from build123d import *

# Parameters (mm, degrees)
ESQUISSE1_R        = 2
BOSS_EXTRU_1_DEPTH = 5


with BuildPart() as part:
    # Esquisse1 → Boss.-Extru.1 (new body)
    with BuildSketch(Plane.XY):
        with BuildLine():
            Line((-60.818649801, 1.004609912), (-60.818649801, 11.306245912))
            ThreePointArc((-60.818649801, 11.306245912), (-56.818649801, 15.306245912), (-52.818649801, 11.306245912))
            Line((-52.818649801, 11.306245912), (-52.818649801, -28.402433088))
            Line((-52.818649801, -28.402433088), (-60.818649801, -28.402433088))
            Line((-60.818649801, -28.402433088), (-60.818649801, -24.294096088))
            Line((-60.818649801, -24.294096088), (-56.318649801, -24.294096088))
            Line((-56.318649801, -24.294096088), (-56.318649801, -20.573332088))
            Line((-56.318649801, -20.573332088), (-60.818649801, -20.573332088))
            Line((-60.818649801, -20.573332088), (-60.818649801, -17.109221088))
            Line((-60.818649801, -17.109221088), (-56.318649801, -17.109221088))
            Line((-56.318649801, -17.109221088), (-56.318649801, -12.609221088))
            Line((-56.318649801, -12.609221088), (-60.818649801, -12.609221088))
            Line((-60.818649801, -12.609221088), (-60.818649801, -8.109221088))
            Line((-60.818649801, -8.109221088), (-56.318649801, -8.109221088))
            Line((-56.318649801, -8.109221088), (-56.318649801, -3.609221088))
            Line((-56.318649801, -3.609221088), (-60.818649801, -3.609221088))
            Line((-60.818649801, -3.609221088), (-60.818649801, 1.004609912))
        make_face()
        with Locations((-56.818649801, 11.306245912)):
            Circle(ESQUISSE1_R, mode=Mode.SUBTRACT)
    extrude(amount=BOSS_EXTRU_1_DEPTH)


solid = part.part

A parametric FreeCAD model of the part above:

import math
import FreeCAD as App
import Part
import Sketcher
from FreeCAD import Vector

doc = App.newDocument("Part")
body = doc.addObject("PartDesign::Body", "Body")

# Sketch on XY plane
sketch1 = body.newObject("Sketcher::SketchObject", "Sketch")
sketch1.AttachmentSupport = (doc.getObject("XY_Plane"), [""])
sketch1.MapMode = "FlatFace"
sketch1.addGeometry(Part.ArcOfCircle(Part.Circle(Vector(-56.81865, 11.306246, 0), Vector(0, 0, 1), 4), math.radians(0), math.radians(180)), False)
sketch1.addGeometry(Part.LineSegment(Vector(-60.81865, 11.306246, 0), Vector(-60.81865, -3.609221, 0)), False)
sketch1.addGeometry(Part.LineSegment(Vector(-60.81865, -3.609221, 0), Vector(-56.31865, -3.609221, 0)), False)
sketch1.addGeometry(Part.LineSegment(Vector(-56.31865, -3.609221, 0), Vector(-56.31865, -8.109221, 0)), False)
sketch1.addGeometry(Part.LineSegment(Vector(-56.31865, -8.109221, 0), Vector(-60.81865, -8.109221, 0)), False)
sketch1.addGeometry(Part.LineSegment(Vector(-60.81865, -8.109221, 0), Vector(-60.81865, -12.609221, 0)), False)
sketch1.addGeometry(Part.LineSegment(Vector(-60.81865, -12.609221, 0), Vector(-56.31865, -12.609221, 0)), False)
sketch1.addGeometry(Part.LineSegment(Vector(-56.31865, -12.609221, 0), Vector(-56.31865, -17.109221, 0)), False)
sketch1.addGeometry(Part.LineSegment(Vector(-56.31865, -17.109221, 0), Vector(-60.81865, -17.109221, 0)), False)
sketch1.addGeometry(Part.LineSegment(Vector(-60.81865, -17.109221, 0), Vector(-60.81865, -20.573332, 0)), False)
sketch1.addGeometry(Part.LineSegment(Vector(-60.81865, -20.573332, 0), Vector(-56.31865, -20.573332, 0)), False)
sketch1.addGeometry(Part.LineSegment(Vector(-56.31865, -20.573332, 0), Vector(-56.31865, -24.294096, 0)), False)
sketch1.addGeometry(Part.LineSegment(Vector(-56.31865, -24.294096, 0), Vector(-60.81865, -24.294096, 0)), False)
sketch1.addGeometry(Part.LineSegment(Vector(-60.81865, -24.294096, 0), Vector(-60.81865, -28.402433, 0)), False)
sketch1.addGeometry(Part.LineSegment(Vector(-60.81865, -28.402433, 0), Vector(-52.81865, -28.402433, 0)), False)
sketch1.addGeometry(Part.LineSegment(Vector(-52.81865, -28.402433, 0), Vector(-52.81865, 11.306246, 0)), False)
sketch1.addGeometry(Part.Circle(Vector(-56.81865, 11.306246, 0), Vector(0, 0, 1), 2), False)
sketch1.addConstraint(Sketcher.Constraint("Tangent", 0, 2, 1, 1))
sketch1.addConstraint(Sketcher.Constraint("Coincident", 1, 2, 2, 1))
sketch1.addConstraint(Sketcher.Constraint("Coincident", 2, 2, 3, 1))
sketch1.addConstraint(Sketcher.Constraint("Coincident", 3, 2, 4, 1))
sketch1.addConstraint(Sketcher.Constraint("Coincident", 4, 2, 5, 1))
sketch1.addConstraint(Sketcher.Constraint("Coincident", 5, 2, 6, 1))
sketch1.addConstraint(Sketcher.Constraint("Coincident", 6, 2, 7, 1))
sketch1.addConstraint(Sketcher.Constraint("Coincident", 7, 2, 8, 1))
sketch1.addConstraint(Sketcher.Constraint("Coincident", 8, 2, 9, 1))
sketch1.addConstraint(Sketcher.Constraint("Coincident", 9, 2, 10, 1))
sketch1.addConstraint(Sketcher.Constraint("Coincident", 10, 2, 11, 1))
sketch1.addConstraint(Sketcher.Constraint("Coincident", 11, 2, 12, 1))
sketch1.addConstraint(Sketcher.Constraint("Coincident", 12, 2, 13, 1))
sketch1.addConstraint(Sketcher.Constraint("Coincident", 13, 2, 14, 1))
sketch1.addConstraint(Sketcher.Constraint("Coincident", 14, 2, 15, 1))
sketch1.addConstraint(Sketcher.Constraint("Tangent", 15, 2, 0, 1))
sketch1.addConstraint(Sketcher.Constraint("Vertical", 1))
sketch1.addConstraint(Sketcher.Constraint("Horizontal", 2))
sketch1.addConstraint(Sketcher.Constraint("Vertical", 3))
sketch1.addConstraint(Sketcher.Constraint("Horizontal", 4))
sketch1.addConstraint(Sketcher.Constraint("Vertical", 5))
sketch1.addConstraint(Sketcher.Constraint("Horizontal", 6))
sketch1.addConstraint(Sketcher.Constraint("Vertical", 7))
sketch1.addConstraint(Sketcher.Constraint("Horizontal", 8))
sketch1.addConstraint(Sketcher.Constraint("Vertical", 9))
sketch1.addConstraint(Sketcher.Constraint("Horizontal", 10))
sketch1.addConstraint(Sketcher.Constraint("Vertical", 11))
sketch1.addConstraint(Sketcher.Constraint("Horizontal", 12))
sketch1.addConstraint(Sketcher.Constraint("Vertical", 13))
sketch1.addConstraint(Sketcher.Constraint("Horizontal", 14))
sketch1.addConstraint(Sketcher.Constraint("Vertical", 15))
sketch1.addConstraint(Sketcher.Constraint("Coincident", 16, 3, 0, 3))
sketch1.addConstraint(Sketcher.Constraint("Vertical", 1, 2, 4, 2))
sketch1.addConstraint(Sketcher.Constraint("Vertical", 3, 2, 6, 2))
sketch1.addConstraint(Sketcher.Constraint("Vertical", 5, 2, 8, 2))
sketch1.addConstraint(Sketcher.Constraint("Vertical", 7, 2, 10, 2))
sketch1.addConstraint(Sketcher.Constraint("Vertical", 9, 2, 12, 2))
sketch1.addConstraint(Sketcher.Constraint("Equal", 12, 3))
sketch1.addConstraint(Sketcher.Constraint("Equal", 3, 5))
sketch1.addConstraint(Sketcher.Constraint("Equal", 5, 7))
sketch1.addConstraint(Sketcher.Constraint("Diameter", 16, 4.0))
sketch1.addConstraint(Sketcher.Constraint("Radius", 0, 4.0))
sketch1.addConstraint(Sketcher.Constraint("DistanceX", 2, 1, 2, 2, 4.5))
sketch1.addConstraint(Sketcher.Constraint("DistanceY", 9, 2, 9, 1, 3.464111))
sketch1.addConstraint(Sketcher.Constraint("DistanceY", 15, 1, 15, 2, 39.708679))
sketch1.addConstraint(Sketcher.Constraint("DistanceY", 13, 2, 9, 2, 7.829101))
sketch1.addConstraint(Sketcher.Constraint("DistanceY", 11, 2, 11, 1, 3.720764))
sketch1.addConstraint(Sketcher.Constraint("DistanceX", 0, 3, -1, 1, 56.81865))
sketch1.addConstraint(Sketcher.Constraint("DistanceY", 1, 2, -1, 1, 3.609221))
pad1 = body.newObject("PartDesign::Pad", "Pad")
pad1.Profile = sketch1
pad1.Length = 5

doc.recompute()
